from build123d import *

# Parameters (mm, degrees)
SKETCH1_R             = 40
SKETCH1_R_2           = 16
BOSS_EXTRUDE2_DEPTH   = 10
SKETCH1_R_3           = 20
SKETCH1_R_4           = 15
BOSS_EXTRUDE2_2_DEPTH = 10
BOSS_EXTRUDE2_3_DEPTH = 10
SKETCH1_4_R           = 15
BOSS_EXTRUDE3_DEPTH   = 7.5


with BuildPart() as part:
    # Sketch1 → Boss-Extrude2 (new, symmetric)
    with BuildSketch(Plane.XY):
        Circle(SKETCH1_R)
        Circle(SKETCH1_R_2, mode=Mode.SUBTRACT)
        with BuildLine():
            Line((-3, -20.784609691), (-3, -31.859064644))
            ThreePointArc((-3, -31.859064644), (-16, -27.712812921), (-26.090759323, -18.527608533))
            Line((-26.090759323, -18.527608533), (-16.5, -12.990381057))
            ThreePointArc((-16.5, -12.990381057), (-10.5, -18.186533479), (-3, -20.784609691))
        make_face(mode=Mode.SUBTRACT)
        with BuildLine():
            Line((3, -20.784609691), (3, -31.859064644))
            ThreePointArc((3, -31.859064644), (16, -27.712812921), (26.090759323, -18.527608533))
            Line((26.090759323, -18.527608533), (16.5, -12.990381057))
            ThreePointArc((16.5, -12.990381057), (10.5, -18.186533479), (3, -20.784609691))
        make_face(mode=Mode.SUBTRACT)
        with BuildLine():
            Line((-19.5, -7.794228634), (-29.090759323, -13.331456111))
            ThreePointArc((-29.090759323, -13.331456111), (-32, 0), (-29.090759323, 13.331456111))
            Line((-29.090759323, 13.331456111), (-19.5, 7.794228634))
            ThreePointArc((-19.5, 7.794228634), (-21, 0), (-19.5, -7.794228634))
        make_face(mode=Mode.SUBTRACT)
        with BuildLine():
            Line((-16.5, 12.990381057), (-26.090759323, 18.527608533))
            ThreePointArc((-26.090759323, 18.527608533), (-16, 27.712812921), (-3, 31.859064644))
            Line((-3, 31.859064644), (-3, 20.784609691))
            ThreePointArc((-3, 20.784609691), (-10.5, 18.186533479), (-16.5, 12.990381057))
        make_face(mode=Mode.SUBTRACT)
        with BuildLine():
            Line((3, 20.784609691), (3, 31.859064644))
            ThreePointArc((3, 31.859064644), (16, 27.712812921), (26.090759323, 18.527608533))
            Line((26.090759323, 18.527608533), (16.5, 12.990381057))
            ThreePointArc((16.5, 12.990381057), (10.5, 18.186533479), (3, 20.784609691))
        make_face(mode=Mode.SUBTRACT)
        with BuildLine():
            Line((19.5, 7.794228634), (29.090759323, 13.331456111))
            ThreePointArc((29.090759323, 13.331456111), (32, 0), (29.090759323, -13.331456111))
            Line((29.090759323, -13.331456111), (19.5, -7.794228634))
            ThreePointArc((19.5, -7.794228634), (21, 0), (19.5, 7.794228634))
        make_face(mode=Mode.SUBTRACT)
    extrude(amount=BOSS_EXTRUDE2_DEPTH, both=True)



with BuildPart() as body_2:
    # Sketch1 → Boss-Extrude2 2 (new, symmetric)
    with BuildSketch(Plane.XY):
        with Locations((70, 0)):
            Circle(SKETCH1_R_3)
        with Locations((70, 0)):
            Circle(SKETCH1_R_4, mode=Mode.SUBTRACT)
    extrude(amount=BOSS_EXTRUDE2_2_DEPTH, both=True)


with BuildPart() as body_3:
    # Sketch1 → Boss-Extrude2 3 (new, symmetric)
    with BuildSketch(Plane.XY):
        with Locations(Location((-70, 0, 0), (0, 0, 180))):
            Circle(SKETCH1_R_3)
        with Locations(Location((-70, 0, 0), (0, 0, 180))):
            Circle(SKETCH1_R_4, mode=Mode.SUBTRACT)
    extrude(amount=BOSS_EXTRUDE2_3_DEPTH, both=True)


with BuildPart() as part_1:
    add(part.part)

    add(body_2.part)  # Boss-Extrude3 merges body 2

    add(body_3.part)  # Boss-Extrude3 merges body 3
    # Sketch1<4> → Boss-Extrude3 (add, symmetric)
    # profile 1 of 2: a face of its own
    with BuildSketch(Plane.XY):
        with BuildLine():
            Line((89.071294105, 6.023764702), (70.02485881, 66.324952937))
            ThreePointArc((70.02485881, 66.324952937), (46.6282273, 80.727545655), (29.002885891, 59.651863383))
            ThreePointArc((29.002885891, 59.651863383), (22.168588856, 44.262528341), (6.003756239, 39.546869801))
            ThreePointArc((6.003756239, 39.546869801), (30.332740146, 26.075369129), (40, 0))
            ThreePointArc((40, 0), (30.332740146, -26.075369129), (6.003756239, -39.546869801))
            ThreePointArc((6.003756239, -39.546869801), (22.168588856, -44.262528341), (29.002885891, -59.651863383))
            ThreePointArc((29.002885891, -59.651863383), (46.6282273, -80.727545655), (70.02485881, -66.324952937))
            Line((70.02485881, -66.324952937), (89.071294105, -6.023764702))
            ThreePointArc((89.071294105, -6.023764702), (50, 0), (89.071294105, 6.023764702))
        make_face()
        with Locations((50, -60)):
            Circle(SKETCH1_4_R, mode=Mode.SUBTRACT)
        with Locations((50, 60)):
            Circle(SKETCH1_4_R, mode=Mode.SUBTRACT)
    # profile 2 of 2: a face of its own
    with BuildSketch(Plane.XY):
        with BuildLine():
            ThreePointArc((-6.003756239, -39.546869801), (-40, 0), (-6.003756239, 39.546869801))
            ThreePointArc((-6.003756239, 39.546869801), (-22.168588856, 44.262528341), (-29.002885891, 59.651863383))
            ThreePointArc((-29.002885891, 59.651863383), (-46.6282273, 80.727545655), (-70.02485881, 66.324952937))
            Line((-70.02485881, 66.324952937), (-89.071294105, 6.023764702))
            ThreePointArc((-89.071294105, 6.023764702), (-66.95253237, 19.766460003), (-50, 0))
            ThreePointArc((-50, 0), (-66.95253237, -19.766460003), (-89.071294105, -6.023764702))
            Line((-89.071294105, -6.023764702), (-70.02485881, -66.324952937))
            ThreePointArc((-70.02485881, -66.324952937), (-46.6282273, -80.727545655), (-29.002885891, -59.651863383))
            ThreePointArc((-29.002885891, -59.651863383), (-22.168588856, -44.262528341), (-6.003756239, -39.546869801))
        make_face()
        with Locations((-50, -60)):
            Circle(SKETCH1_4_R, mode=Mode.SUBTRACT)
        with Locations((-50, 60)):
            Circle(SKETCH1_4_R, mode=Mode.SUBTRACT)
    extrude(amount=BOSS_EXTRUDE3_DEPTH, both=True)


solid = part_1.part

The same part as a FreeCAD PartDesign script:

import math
import FreeCAD as App
import Part
import Sketcher

V = App.Vector
Q = App.Units.Quantity

doc = App.newDocument("Part")
params = doc.addObject("Spreadsheet::Sheet", "Params")
for row, (alias, value) in enumerate([
    ("sketch1_diameter", "80 mm"),
    ("sketch1_diameter2", "32 mm"),
    ("sketch1_radius", "21 mm"),
    ("sketch1_radius2", "32 mm"),
    ("pad1_length", "20 mm"),
    ("sketch2_diameter", "40 mm"),
    ("sketch2_diameter2", "30 mm"),
    ("pad2_length", "20 mm"),
    ("sketch3_diameter", "40 mm"),
    ("sketch3_diameter2", "30 mm"),
    ("pad3_length", "20 mm"),
    ("sketch4_diameter", "30 mm"),
    ("sketch4_radius", "21 mm"),
    ("sketch4_radius2", "20 mm"),
    ("sketch4_radius3", "40 mm"),
    ("pad4_length", "15 mm"),
], start=1):
    params.set(f"A{row}", alias)
    params.set(f"B{row}", "=" + value)
    params.setAlias(f"B{row}", alias)

body = doc.addObject("PartDesign::Body", "Body")

sketch1 = doc.addObject("Sketcher::SketchObject", "Sketch")
body.addObject(sketch1)
sketch1.AttachmentSupport = (doc.XY_Plane, [""])
sketch1.MapMode = "FlatFace"
sketch1.addGeometry([
    Part.Circle(V(0, 0, 0), V(0, 0, 1), 40),
    Part.ArcOfCircle(Part.Circle(V(0, 0, 0), V(0, 0, 1), 21), math.radians(-142), math.radians(-98)),
    Part.LineSegment(V(-3, -21, 0), V(-3, -32, 0)),
    Part.ArcOfCircle(Part.Circle(V(0, 0, 0), V(0, 0, 1), 32), math.radians(-145), math.radians(-95)),
    Part.LineSegment(V(-26, -19, 0), V(-16, -13, 0)),
    Part.LineSegment(V(3, -32, 0), V(3, -21, 0)),
    Part.ArcOfCircle(Part.Circle(V(0, 0, 0), V(0, 0, 1), 21), math.radians(-82), math.radians(-38)),
    Part.LineSegment(V(16, -13, 0), V(26, -19, 0)),
    Part.ArcOfCircle(Part.Circle(V(0, 0, 0), V(0, 0, 1), 32), math.radians(-85), math.radians(-35)),
    Part.ArcOfCircle(Part.Circle(V(0, 0, 0), V(0, 0, 1), 21), math.radians(158), math.radians(202)),
    Part.LineSegment(V(-20, -8, 0), V(-29, -13, 0)),
    Part.ArcOfCircle(Part.Circle(V(0, 0, 0), V(0, 0, 1), 32), math.radians(155), math.radians(205)),
    Part.LineSegment(V(-29, 13, 0), V(-20, 8, 0)),
    Part.ArcOfCircle(Part.Circle(V(0, 0, 0), V(0, 0, 1), 21), math.radians(98), math.radians(142)),
    Part.LineSegment(V(-16, 13, 0), V(-26, 19, 0)),
    Part.ArcOfCircle(Part.Circle(V(0, 0, 0), V(0, 0, 1), 32), math.radians(95), math.radians(145)),
    Part.LineSegment(V(-3, 32, 0), V(-3, 21, 0)),
    Part.Circle(V(0, 0, 0), V(0, 0, 1), 16),
    Part.ArcOfCircle(Part.Circle(V(0, 0, 0), V(0, 0, 1), 21), math.radians(-22), math.radians(22)),
    Part.LineSegment(V(20, 8, 0), V(29, 13, 0)),
    Part.ArcOfCircle(Part.Circle(V(0, 0, 0), V(0, 0, 1), 32), math.radians(-25), math.radians(25)),
    Part.LineSegment(V(29, -13, 0), V(20, -8, 0)),
    Part.ArcOfCircle(Part.Circle(V(0, 0, 0), V(0, 0, 1), 21), math.radians(38), math.radians(82)),
    Part.LineSegment(V(3, 21, 0), V(3, 32, 0)),
    Part.ArcOfCircle(Part.Circle(V(0, 0, 0), V(0, 0, 1), 32), math.radians(35), math.radians(85)),
    Part.LineSegment(V(26, 19, 0), V(16, 13, 0)),
], False)
sketch1.addConstraint([
    Sketcher.Constraint("Coincident", 1, 2, 2, 1),
    Sketcher.Constraint("Coincident", 2, 2, 3, 2),
    Sketcher.Constraint("Coincident", 3, 1, 4, 1),
    Sketcher.Constraint("Coincident", 4, 2, 1, 1),
    Sketcher.Constraint("Coincident", 5, 2, 6, 1),
    Sketcher.Constraint("Coincident", 6, 2, 7, 1),
    Sketcher.Constraint("Coincident", 7, 2, 8, 2),
    Sketcher.Constraint("Coincident", 8, 1, 5, 1),
    Sketcher.Constraint("Coincident", 9, 2, 10, 1),
    Sketcher.Constraint("Coincident", 10, 2, 11, 2),
    Sketcher.Constraint("Coincident", 11, 1, 12, 1),
    Sketcher.Constraint("Coincident", 12, 2, 9, 1),
    Sketcher.Constraint("Coincident", 13, 2, 14, 1),
    Sketcher.Constraint("Coincident", 14, 2, 15, 2),
    Sketcher.Constraint("Coincident", 15, 1, 16, 1),
    Sketcher.Constraint("Coincident", 16, 2, 13, 1),
    Sketcher.Constraint("Coincident", 18, 2, 19, 1),
    Sketcher.Constraint("Coincident", 19, 2, 20, 2),
    Sketcher.Constraint("Coincident", 20, 1, 21, 1),
    Sketcher.Constraint("Coincident", 21, 2, 18, 1),
    Sketcher.Constraint("Coincident", 22, 2, 23, 1),
    Sketcher.Constraint("Coincident", 23, 2, 24, 2),
    Sketcher.Constraint("Coincident", 24, 1, 25, 1),
    Sketcher.Constraint("Coincident", 25, 2, 22, 1),
    Sketcher.Constraint("Vertical", 2),
    Sketcher.Constraint("Vertical", 5),
    Sketcher.Constraint("Vertical", 16),
    Sketcher.Constraint("Vertical", 23),
    Sketcher.Constraint("Coincident", 0, 3, -1, 1),
    Sketcher.Constraint("Coincident", 1, 3, -1, 1),
    Sketcher.Constraint("Coincident", 3, 3, -1, 1),
    Sketcher.Constraint("Coincident", 6, 3, -1, 1),
    Sketcher.Constraint("Coincident", 8, 3, -1, 1),
    Sketcher.Constraint("Coincident", 9, 3, -1, 1),
    Sketcher.Constraint("Coincident", 11, 3, -1, 1),
    Sketcher.Constraint("Coincident", 13, 3, -1, 1),
    Sketcher.Constraint("Coincident", 15, 3, -1, 1),
    Sketcher.Constraint("Coincident", 17, 3, -1, 1),
    Sketcher.Constraint("Coincident", 18, 3, -1, 1),
    Sketcher.Constraint("Coincident", 20, 3, -1, 1),
    Sketcher.Constraint("Coincident", 22, 3, -1, 1),
    Sketcher.Constraint("Coincident", 24, 3, -1, 1),
    Sketcher.Constraint("Equal", 1, 6),
    Sketcher.Constraint("Equal", 3, 8),
    Sketcher.Constraint("Equal", 6, 9),
    Sketcher.Constraint("Equal", 8, 11),
    Sketcher.Constraint("Equal", 9, 13),
    Sketcher.Constraint("Equal", 11, 15),
    Sketcher.Constraint("Equal", 13, 18),
    Sketcher.Constraint("Equal", 15, 20),
    Sketcher.Constraint("Equal", 18, 22),
    Sketcher.Constraint("Equal", 20, 24),
    Sketcher.Constraint("Parallel", 4, 10),
    Sketcher.Constraint("Parallel", 7, 12),
    Sketcher.Constraint("Parallel", 12, 14),
    Sketcher.Constraint("Parallel", 10, 19),
    Sketcher.Constraint("Parallel", 14, 21),
    Sketcher.Constraint("Parallel", 19, 25),
    Sketcher.Constraint("Horizontal", 1, 2, 5, 2),
    Sketcher.Constraint("Horizontal", 4, 2, 6, 2),
    Sketcher.Constraint("Horizontal", 3, 1, 7, 2),
    Sketcher.Constraint("Horizontal", 12, 2, 18, 2),
    Sketcher.Constraint("Horizontal", 10, 2, 20, 1),
    Sketcher.Constraint("Horizontal", 16, 2, 22, 2),
    Sketcher.Constraint("Horizontal", 14, 2, 24, 1),
    Sketcher.Constraint("Vertical", 10, 2, 11, 1),
    Sketcher.Constraint("Vertical", 4, 2, 13, 2),
    Sketcher.Constraint("Vertical", 2, 2, 15, 1),
    Sketcher.Constraint("Equal", 7, 10),
    Sketcher.Constraint("Diameter", 0, Q("80 mm")),
    Sketcher.Constraint("Diameter", 17, Q("32 mm")),
    Sketcher.Constraint("Radius", 1, Q("21 mm")),
    Sketcher.Constraint("Radius", 3, Q("32 mm")),
    Sketcher.Constraint("Angle", 4, Q("30 deg")),
    Sketcher.Constraint("DistanceX", 1, 2, -1, 1, Q("3 mm")),
    Sketcher.Constraint("DistanceX", 9, 2, 4, 2, Q("3 mm")),
])
sketch1.setExpression("Constraints[69]", "Params.sketch1_diameter")
sketch1.setExpression("Constraints[70]", "Params.sketch1_diameter2")
sketch1.setExpression("Constraints[71]", "Params.sketch1_radius")
sketch1.setExpression("Constraints[72]", "Params.sketch1_radius2")
pad1 = doc.addObject("PartDesign::Pad", "Pad")
body.addObject(pad1)
pad1.Profile = sketch1
pad1.setExpression("Length", "Params.pad1_length")
pad1.Midplane = True
body2 = doc.addObject("PartDesign::Body", "Body001")

sketch2 = doc.addObject("Sketcher::SketchObject", "Sketch001")
body2.addObject(sketch2)
sketch2.AttachmentSupport = (doc.getObject("XY_Plane001"), [""])
sketch2.MapMode = "FlatFace"
sketch2.addGeometry([
    Part.Circle(V(70, 0, 0), V(0, 0, 1), 20),
    Part.Circle(V(70, 0, 0), V(0, 0, 1), 15),
], False)
sketch2.addConstraint([
    Sketcher.Constraint("Coincident", 1, 3, 0, 3),
    Sketcher.Constraint("PointOnObject", 0, 3, -1),
    Sketcher.Constraint("Diameter", 0, Q("40 mm")),
    Sketcher.Constraint("Diameter", 1, Q("30 mm")),
    Sketcher.Constraint("DistanceX", -1, 1, 0, 3, Q("70 mm")),
])
sketch2.setExpression("Constraints[2]", "Params.sketch2_diameter")
sketch2.setExpression("Constraints[3]", "Params.sketch2_diameter2")
pad2 = doc.addObject("PartDesign::Pad", "Pad001")
body2.addObject(pad2)
pad2.Profile = sketch2
pad2.setExpression("Length", "Params.pad2_length")
pad2.Midplane = True
body3 = doc.addObject("PartDesign::Body", "Body002")

sketch3 = doc.addObject("Sketcher::SketchObject", "Sketch002")
body3.addObject(sketch3)
sketch3.AttachmentSupport = (doc.getObject("XY_Plane002"), [""])
sketch3.MapMode = "FlatFace"
sketch3.addGeometry([
    Part.Circle(V(-70, 0, 0), V(0, 0, 1), 20),
    Part.Circle(V(-70, 0, 0), V(0, 0, 1), 15),
], False)
sketch3.addConstraint([
    Sketcher.Constraint("Coincident", 1, 3, 0, 3),
    Sketcher.Constraint("PointOnObject", 0, 3, -1),
    Sketcher.Constraint("Diameter", 0, Q("40 mm")),
    Sketcher.Constraint("Diameter", 1, Q("30 mm")),
    Sketcher.Constraint("DistanceX", 0, 3, -1, 1, Q("70 mm")),
])
sketch3.setExpression("Constraints[2]", "Params.sketch3_diameter")
sketch3.setExpression("Constraints[3]", "Params.sketch3_diameter2")
pad3 = doc.addObject("PartDesign::Pad", "Pad002")
body3.addObject(pad3)
pad3.Profile = sketch3
pad3.setExpression("Length", "Params.pad3_length")
pad3.Midplane = True
body.AllowCompound = True
doc.recompute()

boolean = doc.addObject("PartDesign::Boolean", "Boolean")
body.addObject(boolean)
boolean.Type = "Fuse"
boolean.addObjects([body2])
doc.recompute()

boolean2 = doc.addObject("PartDesign::Boolean", "Boolean001")
body.addObject(boolean2)
boolean2.Type = "Fuse"
boolean2.addObjects([body3])

sketch4 = doc.addObject("Sketcher::SketchObject", "Sketch003")
body.addObject(sketch4)
sketch4.AttachmentSupport = (doc.XY_Plane, [""])
sketch4.MapMode = "FlatFace"
sketch4.addGeometry([
    Part.LineSegment(V(89, 6, 0), V(70, 66, 0)),
    Part.ArcOfCircle(Part.Circle(V(50, 60, 0), V(0, 0, 1), 21), math.radians(18), math.radians(181)),
    Part.ArcOfCircle(Part.Circle(V(9, 59, 0), V(0, 0, 1), 20), math.radians(-99), math.radians(1)),
    Part.ArcOfCircle(Part.Circle(V(0, 0, 0), V(0, 0, 1), 40), math.radians(0), math.radians(81)),
    Part.ArcOfCircle(Part.Circle(V(0, 0, 0), V(0, 0, 1), 40), math.radians(-81), math.radians(0)),
    Part.ArcOfCircle(Part.Circle(V(9, -59, 0), V(0, 0, 1), 20), math.radians(-1), math.radians(99)),
    Part.ArcOfCircle(Part.Circle(V(50, -60, 0), V(0, 0, 1), 21), math.radians(179), math.radians(342)),
    Part.LineSegment(V(70, -66, 0), V(89, -6, 0)),
    Part.ArcOfCircle(Part.Circle(V(70, 0, 0), V(0, 0, 1), 20), math.radians(18), math.radians(342)),
    Part.Circle(V(50, -60, 0), V(0, 0, 1), 15),
    Part.Circle(V(50, 60, 0), V(0, 0, 1), 15),
    Part.ArcOfCircle(Part.Circle(V(0, 0, 0), V(0, 0, 1), 40), math.radians(99), math.radians(261)),
    Part.ArcOfCircle(Part.Circle(V(-9, 59, 0), V(0, 0, 1), 20), math.radians(179), math.radians(279)),
    Part.ArcOfCircle(Part.Circle(V(-50, 60, 0), V(0, 0, 1), 21), math.radians(-1), math.radians(162)),
    Part.LineSegment(V(-70, 66, 0), V(-89, 6, 0)),
    Part.ArcOfCircle(Part.Circle(V(-70, 0, 0), V(0, 0, 1), 20), math.radians(0), math.radians(162)),
    Part.ArcOfCircle(Part.Circle(V(-70, 0, 0), V(0, 0, 1), 20), math.radians(-162), math.radians(0)),
    Part.LineSegment(V(-89, -6, 0), V(-70, -66, 0)),
    Part.ArcOfCircle(Part.Circle(V(-50, -60, 0), V(0, 0, 1), 21), math.radians(-162), math.radians(1)),
    Part.ArcOfCircle(Part.Circle(V(-9, -59, 0), V(0, 0, 1), 20), math.radians(81), math.radians(181)),
    Part.Circle(V(-50, -60, 0), V(0, 0, 1), 15),
    Part.Circle(V(-50, 60, 0), V(0, 0, 1), 15),
], False)
sketch4.addConstraint([
    Sketcher.Constraint("Tangent", 0, 2, 1, 1),
    Sketcher.Constraint("Tangent", 1, 2, 2, 2),
    Sketcher.Constraint("Tangent", 2, 1, 3, 2),
    Sketcher.Constraint("Tangent", 3, 1, 4, 2),
    Sketcher.Constraint("Tangent", 4, 1, 5, 2),
    Sketcher.Constraint("Tangent", 5, 1, 6, 1),
    Sketcher.Constraint("Tangent", 6, 2, 7, 1),
    Sketcher.Constraint("Tangent", 7, 2, 8, 2),
    Sketcher.Constraint("Tangent", 8, 1, 0, 1),
    Sketcher.Constraint("Tangent", 11, 1, 12, 2),
    Sketcher.Constraint("Tangent", 12, 1, 13, 1),
    Sketcher.Constraint("Tangent", 13, 2, 14, 1),
    Sketcher.Constraint("Tangent", 14, 2, 15, 2),
    Sketcher.Constraint("Tangent", 15, 1, 16, 2),
    Sketcher.Constraint("Tangent", 16, 1, 17, 1),
    Sketcher.Constraint("Tangent", 17, 2, 18, 1),
    Sketcher.Constraint("Tangent", 18, 2, 19, 2),
    Sketcher.Constraint("Tangent", 19, 1, 11, 2),
    Sketcher.Constraint("Coincident", 3, 3, -1, 1),
    Sketcher.Constraint("Coincident", 11, 3, -1, 1),
    Sketcher.Constraint("Coincident", 9, 3, 6, 3),
    Sketcher.Constraint("Coincident", 10, 3, 1, 3),
    Sketcher.Constraint("Coincident", 20, 3, 18, 3),
    Sketcher.Constraint("Coincident", 21, 3, 13, 3),
    Sketcher.Constraint("Equal", 3, 4),
    Sketcher.Constraint("Equal", 2, 5),
    Sketcher.Constraint("Equal", 1, 6),
    Sketcher.Constraint("Equal", 5, 8),
    Sketcher.Constraint("Equal", 9, 10),
    Sketcher.Constraint("Equal", 4, 11),
    Sketcher.Constraint("Equal", 8, 12),
    Sketcher.Constraint("Equal", 6, 13),
    Sketcher.Constraint("Equal", 12, 15),
    Sketcher.Constraint("Equal", 15, 16),
    Sketcher.Constraint("Equal", 13, 18),
    Sketcher.Constraint("Equal", 16, 19),
    Sketcher.Constraint("Equal", 10, 20),
    Sketcher.Constraint("Equal", 20, 21),
    Sketcher.Constraint("Symmetric", 6, 3, 13, 3, -1, 1),
    Sketcher.Constraint("Symmetric", 8, 3, 15, 3, -1, 1),
    Sketcher.Constraint("Symmetric", 1, 3, 18, 3, -1, 1),
    Sketcher.Constraint("Symmetric", 1, 3, 13, 3, -2),
    Sketcher.Constraint("PointOnObject", 8, 3, -1),
    Sketcher.Constraint("PointOnObject", 3, 1, -1),
    Sketcher.Constraint("PointOnObject", 15, 1, -1),
    Sketcher.Constraint("Vertical", 21, 3, 15, 1),
    Sketcher.Constraint("Diameter", 9, Q("30 mm")),
    Sketcher.Constraint("Radius", 1, Q("21 mm")),
    Sketcher.Constraint("Radius", 2, Q("20 mm")),
    Sketcher.Constraint("Radius", 3, Q("40 mm")),
    Sketcher.Constraint("DistanceX", -1, 1, 1, 3, Q("50 mm")),
    Sketcher.Constraint("DistanceY", -1, 1, 1, 3, Q("60 mm")),
])
sketch4.setExpression("Constraints[46]", "Params.sketch4_diameter")
sketch4.setExpression("Constraints[47]", "Params.sketch4_radius")
sketch4.setExpression("Constraints[48]", "Params.sketch4_radius2")
sketch4.setExpression("Constraints[49]", "Params.sketch4_radius3")
pad4 = doc.addObject("PartDesign::Pad", "Pad003")
body.addObject(pad4)
pad4.Profile = sketch4
pad4.setExpression("Length", "Params.pad4_length")
pad4.Midplane = True

doc.recompute()
